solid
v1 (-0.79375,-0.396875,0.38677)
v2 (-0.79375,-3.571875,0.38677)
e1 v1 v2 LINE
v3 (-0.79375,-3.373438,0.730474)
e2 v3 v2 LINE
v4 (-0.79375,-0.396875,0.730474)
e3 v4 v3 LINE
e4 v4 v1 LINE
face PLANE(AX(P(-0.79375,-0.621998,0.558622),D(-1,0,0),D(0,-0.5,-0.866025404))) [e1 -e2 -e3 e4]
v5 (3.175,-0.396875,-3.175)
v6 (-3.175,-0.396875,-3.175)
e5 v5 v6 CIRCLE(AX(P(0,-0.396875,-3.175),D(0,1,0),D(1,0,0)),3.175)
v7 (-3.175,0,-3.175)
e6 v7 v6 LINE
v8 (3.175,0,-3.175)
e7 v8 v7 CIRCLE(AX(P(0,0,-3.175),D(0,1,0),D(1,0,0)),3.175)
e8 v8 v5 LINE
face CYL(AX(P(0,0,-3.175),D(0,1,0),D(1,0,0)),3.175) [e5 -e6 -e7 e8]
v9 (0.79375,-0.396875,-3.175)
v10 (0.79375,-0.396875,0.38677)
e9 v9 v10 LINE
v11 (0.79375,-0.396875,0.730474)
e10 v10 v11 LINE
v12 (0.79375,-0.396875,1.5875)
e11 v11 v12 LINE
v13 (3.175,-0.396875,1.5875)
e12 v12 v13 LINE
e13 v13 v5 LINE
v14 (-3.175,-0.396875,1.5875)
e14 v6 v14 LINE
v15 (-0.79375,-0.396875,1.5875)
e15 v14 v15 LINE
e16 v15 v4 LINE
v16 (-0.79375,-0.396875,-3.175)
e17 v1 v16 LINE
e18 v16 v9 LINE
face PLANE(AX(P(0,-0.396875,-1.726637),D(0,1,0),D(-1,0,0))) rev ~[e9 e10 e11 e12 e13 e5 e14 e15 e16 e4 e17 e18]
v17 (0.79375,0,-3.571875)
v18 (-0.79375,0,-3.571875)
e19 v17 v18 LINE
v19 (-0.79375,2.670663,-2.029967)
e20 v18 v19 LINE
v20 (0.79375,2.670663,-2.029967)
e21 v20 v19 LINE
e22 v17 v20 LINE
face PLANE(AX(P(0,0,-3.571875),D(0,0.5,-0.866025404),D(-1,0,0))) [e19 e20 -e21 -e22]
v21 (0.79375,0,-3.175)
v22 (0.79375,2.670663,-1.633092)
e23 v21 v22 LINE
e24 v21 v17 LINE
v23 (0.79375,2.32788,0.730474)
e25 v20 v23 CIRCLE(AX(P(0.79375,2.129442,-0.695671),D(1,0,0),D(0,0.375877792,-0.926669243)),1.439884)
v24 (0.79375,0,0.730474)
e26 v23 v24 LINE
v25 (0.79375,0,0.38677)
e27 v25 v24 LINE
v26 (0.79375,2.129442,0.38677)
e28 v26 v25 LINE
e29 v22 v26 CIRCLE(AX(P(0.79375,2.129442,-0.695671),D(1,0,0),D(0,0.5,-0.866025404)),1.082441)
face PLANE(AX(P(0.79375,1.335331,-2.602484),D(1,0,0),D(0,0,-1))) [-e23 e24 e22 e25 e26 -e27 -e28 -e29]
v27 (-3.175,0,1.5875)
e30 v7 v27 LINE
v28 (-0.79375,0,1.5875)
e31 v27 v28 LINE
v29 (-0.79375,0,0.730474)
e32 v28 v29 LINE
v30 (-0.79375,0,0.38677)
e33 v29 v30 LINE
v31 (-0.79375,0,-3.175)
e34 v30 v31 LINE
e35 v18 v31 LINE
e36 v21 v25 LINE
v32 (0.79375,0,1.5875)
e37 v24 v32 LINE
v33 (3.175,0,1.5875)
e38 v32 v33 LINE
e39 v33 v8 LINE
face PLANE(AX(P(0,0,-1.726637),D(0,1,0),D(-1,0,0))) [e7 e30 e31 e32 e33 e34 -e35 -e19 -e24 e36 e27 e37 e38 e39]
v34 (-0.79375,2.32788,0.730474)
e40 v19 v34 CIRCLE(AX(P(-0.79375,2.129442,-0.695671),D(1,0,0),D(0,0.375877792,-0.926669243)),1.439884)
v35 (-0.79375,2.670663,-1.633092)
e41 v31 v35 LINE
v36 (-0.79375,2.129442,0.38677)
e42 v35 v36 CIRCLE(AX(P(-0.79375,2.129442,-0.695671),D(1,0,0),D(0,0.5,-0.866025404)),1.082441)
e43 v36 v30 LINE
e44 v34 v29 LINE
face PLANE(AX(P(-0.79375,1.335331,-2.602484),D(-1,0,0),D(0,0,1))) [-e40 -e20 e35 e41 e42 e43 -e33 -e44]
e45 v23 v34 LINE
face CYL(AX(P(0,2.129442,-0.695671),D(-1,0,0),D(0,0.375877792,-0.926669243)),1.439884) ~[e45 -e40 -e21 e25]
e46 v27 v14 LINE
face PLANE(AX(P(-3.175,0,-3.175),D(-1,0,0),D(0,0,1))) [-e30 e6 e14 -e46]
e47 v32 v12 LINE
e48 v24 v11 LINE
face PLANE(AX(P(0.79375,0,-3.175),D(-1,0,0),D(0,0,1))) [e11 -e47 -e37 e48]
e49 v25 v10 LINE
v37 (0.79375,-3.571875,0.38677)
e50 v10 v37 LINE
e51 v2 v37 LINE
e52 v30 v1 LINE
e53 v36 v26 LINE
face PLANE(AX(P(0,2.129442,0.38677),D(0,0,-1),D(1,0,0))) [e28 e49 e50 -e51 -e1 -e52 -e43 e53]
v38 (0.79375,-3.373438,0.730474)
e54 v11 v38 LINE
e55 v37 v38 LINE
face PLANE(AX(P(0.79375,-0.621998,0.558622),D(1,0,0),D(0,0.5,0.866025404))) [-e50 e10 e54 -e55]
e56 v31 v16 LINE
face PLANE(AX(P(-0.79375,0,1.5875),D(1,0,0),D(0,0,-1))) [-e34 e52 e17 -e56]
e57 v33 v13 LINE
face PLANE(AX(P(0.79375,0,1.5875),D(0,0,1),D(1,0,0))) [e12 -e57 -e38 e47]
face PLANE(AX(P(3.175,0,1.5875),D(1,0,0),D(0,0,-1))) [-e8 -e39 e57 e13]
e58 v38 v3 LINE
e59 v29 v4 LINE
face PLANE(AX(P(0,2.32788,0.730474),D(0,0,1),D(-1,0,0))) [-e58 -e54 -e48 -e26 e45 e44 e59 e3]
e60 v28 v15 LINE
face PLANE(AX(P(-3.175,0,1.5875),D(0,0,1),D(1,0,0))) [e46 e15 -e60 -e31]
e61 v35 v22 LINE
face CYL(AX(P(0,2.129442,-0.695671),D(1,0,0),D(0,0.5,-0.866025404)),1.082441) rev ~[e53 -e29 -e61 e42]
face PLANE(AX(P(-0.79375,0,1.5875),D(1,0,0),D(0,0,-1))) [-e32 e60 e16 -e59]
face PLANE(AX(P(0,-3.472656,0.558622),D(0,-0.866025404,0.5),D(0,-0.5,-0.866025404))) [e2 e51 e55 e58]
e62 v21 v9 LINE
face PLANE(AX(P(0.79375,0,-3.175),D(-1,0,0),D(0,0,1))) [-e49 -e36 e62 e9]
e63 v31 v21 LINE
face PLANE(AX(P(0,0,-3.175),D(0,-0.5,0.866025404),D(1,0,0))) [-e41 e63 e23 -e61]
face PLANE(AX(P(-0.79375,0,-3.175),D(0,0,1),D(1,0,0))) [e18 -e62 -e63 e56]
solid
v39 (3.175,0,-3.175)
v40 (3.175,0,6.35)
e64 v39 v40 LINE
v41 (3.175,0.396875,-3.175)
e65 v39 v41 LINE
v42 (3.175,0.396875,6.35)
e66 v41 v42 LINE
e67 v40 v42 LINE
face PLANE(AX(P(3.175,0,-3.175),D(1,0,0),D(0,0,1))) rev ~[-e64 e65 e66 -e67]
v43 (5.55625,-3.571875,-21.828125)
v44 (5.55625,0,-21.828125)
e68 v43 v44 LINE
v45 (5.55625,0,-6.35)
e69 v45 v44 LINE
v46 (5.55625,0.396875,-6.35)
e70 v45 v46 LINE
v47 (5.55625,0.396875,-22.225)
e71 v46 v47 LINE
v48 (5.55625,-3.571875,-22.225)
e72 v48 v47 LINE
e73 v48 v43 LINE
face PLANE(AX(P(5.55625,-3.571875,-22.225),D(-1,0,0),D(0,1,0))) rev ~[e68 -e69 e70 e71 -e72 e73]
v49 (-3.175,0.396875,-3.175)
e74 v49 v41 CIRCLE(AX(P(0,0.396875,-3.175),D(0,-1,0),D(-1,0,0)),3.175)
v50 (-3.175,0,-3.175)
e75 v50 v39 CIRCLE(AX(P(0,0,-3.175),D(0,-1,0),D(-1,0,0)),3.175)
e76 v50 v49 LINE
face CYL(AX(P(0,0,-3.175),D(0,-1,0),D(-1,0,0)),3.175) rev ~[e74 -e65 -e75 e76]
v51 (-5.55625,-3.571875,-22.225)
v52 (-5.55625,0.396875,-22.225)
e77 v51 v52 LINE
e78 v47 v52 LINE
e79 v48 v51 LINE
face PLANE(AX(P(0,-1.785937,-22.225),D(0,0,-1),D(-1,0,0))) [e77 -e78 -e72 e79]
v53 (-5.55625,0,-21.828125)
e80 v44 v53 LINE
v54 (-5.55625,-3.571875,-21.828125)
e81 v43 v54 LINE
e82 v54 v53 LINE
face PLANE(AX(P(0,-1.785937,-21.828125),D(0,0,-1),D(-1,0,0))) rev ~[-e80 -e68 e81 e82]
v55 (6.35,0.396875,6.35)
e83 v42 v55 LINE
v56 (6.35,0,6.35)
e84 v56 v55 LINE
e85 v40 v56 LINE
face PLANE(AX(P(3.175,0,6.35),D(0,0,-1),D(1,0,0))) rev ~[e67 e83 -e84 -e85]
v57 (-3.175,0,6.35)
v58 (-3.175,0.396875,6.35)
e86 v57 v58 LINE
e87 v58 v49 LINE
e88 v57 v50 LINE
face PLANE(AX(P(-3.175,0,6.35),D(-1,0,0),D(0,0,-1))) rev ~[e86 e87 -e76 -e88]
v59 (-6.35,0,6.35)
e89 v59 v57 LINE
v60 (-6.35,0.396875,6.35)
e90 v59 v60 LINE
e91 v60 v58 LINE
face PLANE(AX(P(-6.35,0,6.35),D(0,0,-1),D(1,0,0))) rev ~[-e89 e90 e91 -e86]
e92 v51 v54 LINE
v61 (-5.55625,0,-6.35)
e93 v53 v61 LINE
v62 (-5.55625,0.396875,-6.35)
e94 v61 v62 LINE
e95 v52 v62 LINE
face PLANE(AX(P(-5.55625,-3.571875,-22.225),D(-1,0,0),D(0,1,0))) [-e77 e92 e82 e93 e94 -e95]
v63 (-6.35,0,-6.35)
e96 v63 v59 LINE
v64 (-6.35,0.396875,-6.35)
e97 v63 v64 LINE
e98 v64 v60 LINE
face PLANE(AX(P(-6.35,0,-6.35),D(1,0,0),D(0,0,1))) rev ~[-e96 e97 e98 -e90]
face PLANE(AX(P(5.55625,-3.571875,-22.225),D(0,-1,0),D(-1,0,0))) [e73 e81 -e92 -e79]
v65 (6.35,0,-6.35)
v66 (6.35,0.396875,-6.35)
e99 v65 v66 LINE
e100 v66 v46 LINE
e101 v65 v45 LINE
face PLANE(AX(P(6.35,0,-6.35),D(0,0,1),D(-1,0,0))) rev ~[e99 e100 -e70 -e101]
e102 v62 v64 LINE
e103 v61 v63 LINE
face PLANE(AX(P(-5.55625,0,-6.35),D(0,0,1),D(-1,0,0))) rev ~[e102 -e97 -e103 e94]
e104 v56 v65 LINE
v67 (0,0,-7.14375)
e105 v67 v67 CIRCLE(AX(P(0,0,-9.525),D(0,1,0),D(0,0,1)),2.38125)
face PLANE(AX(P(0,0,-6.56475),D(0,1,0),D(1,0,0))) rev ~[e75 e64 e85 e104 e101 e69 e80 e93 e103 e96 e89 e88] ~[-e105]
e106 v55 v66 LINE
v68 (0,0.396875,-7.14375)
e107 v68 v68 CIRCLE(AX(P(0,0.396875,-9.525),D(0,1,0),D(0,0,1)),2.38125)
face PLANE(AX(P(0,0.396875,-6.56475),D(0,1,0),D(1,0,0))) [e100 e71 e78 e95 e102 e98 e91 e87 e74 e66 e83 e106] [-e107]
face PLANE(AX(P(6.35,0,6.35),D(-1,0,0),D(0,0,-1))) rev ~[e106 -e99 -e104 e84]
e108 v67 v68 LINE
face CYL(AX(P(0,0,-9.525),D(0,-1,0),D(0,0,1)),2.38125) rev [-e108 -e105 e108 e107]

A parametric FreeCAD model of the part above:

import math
import FreeCAD as App
import Part
import Sketcher
Q = App.Units.Quantity


def add_polygon(sketch, points):
    """Adds a closed chain of lines whose ends are joined by coincident constraints."""
    first, n = sketch.GeometryCount, len(points)
    for a, b in zip(points, points[1:] + points[:1]):
        sketch.addGeometry(Part.LineSegment(App.Vector(*a, 0), App.Vector(*b, 0)), False)
    for i in range(n):
        sketch.addConstraint(Sketcher.Constraint("Coincident", first + i, 2, first + (i + 1) % n, 1))

doc = App.newDocument("Part")
body = doc.addObject("PartDesign::Body", "Body")

# Sketch on XZ plane
sketch1 = body.newObject("Sketcher::SketchObject", "Sketch")
sketch1.AttachmentSupport = (doc.getObject("XZ_Plane"), [""])
sketch1.MapMode = "FlatFace"
sketch1.addGeometry([
    Part.LineSegment(App.Vector(-6.35, 6.35, 0), App.Vector(-3.175, 6.35, 0)),  # 0
    Part.LineSegment(App.Vector(-3.175, 6.35, 0), App.Vector(-3.175, -3.175, 0)),  # 1
    Part.ArcOfCircle(Part.Circle(App.Vector(0, -3.175, 0), App.Vector(0, 0, 1), 3.175), math.radians(180), math.radians(360)),  # 2
    Part.LineSegment(App.Vector(3.175, -3.175, 0), App.Vector(3.175, 6.35, 0)),  # 3
    Part.LineSegment(App.Vector(3.175, 6.35, 0), App.Vector(6.35, 6.35, 0)),  # 4
    Part.LineSegment(App.Vector(6.35, 6.35, 0), App.Vector(6.35, -6.35, 0)),  # 5
    Part.LineSegment(App.Vector(6.35, -6.35, 0), App.Vector(5.55625, -6.35, 0)),  # 6
    Part.LineSegment(App.Vector(5.55625, -6.35, 0), App.Vector(5.55625, -22.225, 0)),  # 7
    Part.LineSegment(App.Vector(5.55625, -22.225, 0), App.Vector(-5.55625, -22.225, 0)),  # 8
    Part.LineSegment(App.Vector(-5.55625, -22.225, 0), App.Vector(-5.55625, -6.35, 0)),  # 9
    Part.LineSegment(App.Vector(-5.55625, -6.35, 0), App.Vector(-6.35, -6.35, 0)),  # 10
    Part.LineSegment(App.Vector(-6.35, -6.35, 0), App.Vector(-6.35, 6.35, 0)),  # 11
    Part.Circle(App.Vector(0, -9.525, 0), App.Vector(0, 0, 1), 2.38125),  # 12
], False)
sketch1.addConstraint([
    Sketcher.Constraint("Coincident", 0, 2, 1, 1),
    Sketcher.Constraint("Tangent", 1, 2, 2, 1),
    Sketcher.Constraint("Tangent", 2, 2, 3, 1),
    Sketcher.Constraint("Coincident", 3, 2, 4, 1),
    Sketcher.Constraint("Coincident", 4, 2, 5, 1),
    Sketcher.Constraint("Coincident", 5, 2, 6, 1),
    Sketcher.Constraint("Coincident", 6, 2, 7, 1),
    Sketcher.Constraint("Coincident", 7, 2, 8, 1),
    Sketcher.Constraint("Coincident", 8, 2, 9, 1),
    Sketcher.Constraint("Coincident", 9, 2, 10, 1),
    Sketcher.Constraint("Coincident", 10, 2, 11, 1),
    Sketcher.Constraint("Coincident", 11, 2, 0, 1),
    Sketcher.Constraint("Horizontal", 0),
    Sketcher.Constraint("Vertical", 1),
    Sketcher.Constraint("Vertical", 3),
    Sketcher.Constraint("Horizontal", 4),
    Sketcher.Constraint("Vertical", 5),
    Sketcher.Constraint("Horizontal", 6),
    Sketcher.Constraint("Vertical", 7),
    Sketcher.Constraint("Horizontal", 8),
    Sketcher.Constraint("Vertical", 9),
    Sketcher.Constraint("Horizontal", 10),
    Sketcher.Constraint("Vertical", 11),
    Sketcher.Constraint("Symmetric", 4, 2, 10, 2, -1, 1),
    Sketcher.Constraint("Symmetric", 0, 2, 3, 2, -2),
    Sketcher.Constraint("Symmetric", 6, 2, 9, 2, -2),
    Sketcher.Constraint("PointOnObject", 12, 3, -2),
    Sketcher.Constraint("Diameter", 12, Q("0.1875 in")),
    Sketcher.Constraint("DistanceY", 5, 2, 5, 1, Q("0.5 in")),
    Sketcher.Constraint("Radius", 2, Q("0.125 in")),
    Sketcher.Constraint("DistanceY", 7, 2, 12, 3, Q("0.5 in")),
    Sketcher.Constraint("DistanceX", 11, 2, 4, 2, Q("0.5 in")),
    Sketcher.Constraint("DistanceX", 6, 2, 6, 1, Q("0.03125 in")),
    Sketcher.Constraint("DistanceY", 1, 2, 1, 1, Q("0.375 in")),
    Sketcher.Constraint("DistanceY", 7, 2, 7, 1, Q("0.625 in")),
])
pad1 = body.newObject("PartDesign::Pad", "Pad")
pad1.Profile = sketch1
pad1.Length = Q("0.015625 in")
pad1.Reversed = True

# Sketch on XY plane
sketch2 = body.newObject("Sketcher::SketchObject", "Sketch001")
sketch2.AttachmentSupport = (doc.getObject("XY_Plane"), [""])
sketch2.MapMode = "FlatFace"
sketch2.AttachmentOffset = App.Placement(App.Vector(0, 0, -0.875 * 25.4), App.Rotation())
add_polygon(sketch2, [(5.55625, 0), (5.55625, -3.571875), (-5.55625, -3.571875), (-5.55625, 0)])  # lines 0-3
sketch2.addConstraint([
    Sketcher.Constraint("Vertical", 0),
    Sketcher.Constraint("Horizontal", 1),
    Sketcher.Constraint("Vertical", 2),
    Sketcher.Constraint("Horizontal", 3),
    Sketcher.Constraint("Symmetric", 2, 2, 3, 2, -1, 1),
    Sketcher.Constraint("DistanceX", 1, 2, 1, 1, Q("0.4375 in")),
    Sketcher.Constraint("DistanceY", 0, 2, 0, 1, Q("0.140625 in")),
])
pad2 = body.newObject("PartDesign::Pad", "Pad001")
pad2.Profile = sketch2
pad2.Length = Q("0.015625 in")
body2 = doc.addObject("PartDesign::Body", "Body001")

# Sketch on XZ plane
sketch3 = body2.newObject("Sketcher::SketchObject", "Sketch002")
sketch3.AttachmentSupport = (doc.getObject("XZ_Plane001"), [""])
sketch3.MapMode = "FlatFace"
sketch3.addGeometry([
    Part.LineSegment(App.Vector(-3.175, 1.5875, 0), App.Vector(-3.175, -3.175, 0)),  # 0
    Part.ArcOfCircle(Part.Circle(App.Vector(0, -3.175, 0), App.Vector(0, 0, 1), 3.175), math.radians(180), math.radians(360)),  # 1
    Part.LineSegment(App.Vector(3.175, -3.175, 0), App.Vector(3.175, 1.5875, 0)),  # 2
    Part.LineSegment(App.Vector(3.175, 1.5875, 0), App.Vector(0.79375, 1.5875, 0)),  # 3
    Part.LineSegment(App.Vector(0.79375, 1.5875, 0), App.Vector(0.79375, -3.175, 0)),  # 4
    Part.LineSegment(App.Vector(0.79375, -3.175, 0), App.Vector(-0.79375, -3.175, 0)),  # 5
    Part.LineSegment(App.Vector(-0.79375, -3.175, 0), App.Vector(-0.79375, 1.5875, 0)),  # 6
    Part.LineSegment(App.Vector(-0.79375, 1.5875, 0), App.Vector(-3.175, 1.5875, 0)),  # 7
], False)
sketch3.addConstraint([
    Sketcher.Constraint("Tangent", 0, 2, 1, 1),
    Sketcher.Constraint("Tangent", 1, 2, 2, 1),
    Sketcher.Constraint("Coincident", 2, 2, 3, 1),
    Sketcher.Constraint("Coincident", 3, 2, 4, 1),
    Sketcher.Constraint("Coincident", 4, 2, 5, 1),
    Sketcher.Constraint("Coincident", 5, 2, 6, 1),
    Sketcher.Constraint("Coincident", 6, 2, 7, 1),
    Sketcher.Constraint("Coincident", 7, 2, 0, 1),
    Sketcher.Constraint("Vertical", 0),
    Sketcher.Constraint("Vertical", 2),
    Sketcher.Constraint("Horizontal", 3),
    Sketcher.Constraint("Vertical", 4),
    Sketcher.Constraint("Horizontal", 5),
    Sketcher.Constraint("Vertical", 6),
    Sketcher.Constraint("Horizontal", 7),
    Sketcher.Constraint("Symmetric", 3, 2, 6, 2, -2),
    Sketcher.Constraint("PointOnObject", 1, 3, -2),
    Sketcher.Constraint("Horizontal", 1, 2, 4, 2),
    Sketcher.Constraint("Radius", 1, Q("0.125 in")),
    Sketcher.Constraint("DistanceX", 3, 2, 3, 1, Q("0.09375 in")),
    Sketcher.Constraint("DistanceY", 0, 2, 0, 1, Q("0.1875 in")),
    Sketcher.Constraint("DistanceY", 1, 3, -1, 1, Q("0.125 in")),
])
pad3 = body2.newObject("PartDesign::Pad", "Pad002")
pad3.Profile = sketch3
pad3.Length = Q("0.015625 in")

# Sketch on XZ plane
sketch4 = body2.newObject("Sketcher::SketchObject", "Sketch003")
sketch4.AttachmentSupport = (doc.getObject("XZ_Plane001"), [""])
sketch4.MapMode = "FlatFace"
add_polygon(sketch4, [(-0.79375, -3.571875), (-0.79375, -3.175), (0.79375, -3.175), (0.79375, -3.571875)])  # lines 0-3
sketch4.addConstraint([
    Sketcher.Constraint("Vertical", 0),
    Sketcher.Constraint("Horizontal", 1),
    Sketcher.Constraint("Vertical", 2),
    Sketcher.Constraint("Horizontal", 3),
    Sketcher.Constraint("DistanceX", 1, 1, 1, 2, Q("0.0625 in")),
    Sketcher.Constraint("DistanceY", 0, 1, 0, 2, Q("0.015625 in")),
    Sketcher.Constraint("DistanceX", 0, 2, -1, 1, Q("0.03125 in")),
    Sketcher.Constraint("DistanceY", 0, 2, -1, 1, Q("0.125 in")),
])

# Sketch on YZ plane
sketch5 = body2.newObject("Sketcher::SketchObject", "Sketch004")
sketch5.AttachmentSupport = (doc.getObject("YZ_Plane001"), [""])
sketch5.MapMode = "FlatFace"
sketch5.addGeometry([
    Part.LineSegment(App.Vector(0, -3.175, 0), App.Vector(2.670663, -1.633092, 0)),
    Part.ArcOfCircle(Part.Circle(App.Vector(2.129442, -0.695671, 0), App.Vector(0, 0, 1), 1.082441), math.radians(-60), math.radians(90)),
    Part.LineSegment(App.Vector(2.129442, 0.38677, 0), App.Vector(-3.571875, 0.38677, 0)),
], False)
sketch5.addConstraint([
    Sketcher.Constraint("Tangent", 0, 2, 1, 1),
    Sketcher.Constraint("Tangent", 1, 2, 2, 1),
    Sketcher.Constraint("Horizontal", 2),
    Sketcher.Constraint("PointOnObject", 0, 1, -2),
    Sketcher.Constraint("Angle", 0, Q("30 deg")),
    Sketcher.Constraint("DistanceY", 0, 1, -1, 1, Q("0.125 in")),
    Sketcher.Constraint("DistanceX", 2, 2, -1, 1, Q("0.140625 in")),
    Sketcher.Constraint("Radius", 1, Q("1.082441 mm")),
    Sketcher.Constraint("DistanceX", 2, 2, 2, 1, Q("5.701317 mm")),
])
doc.recompute()

additivepipe = body2.newObject("PartDesign::AdditivePipe", "AdditivePipe")
additivepipe.Profile = sketch4
additivepipe.Spine = (sketch5, ["Edge1", "Edge2", "Edge3"])

doc.recompute()
